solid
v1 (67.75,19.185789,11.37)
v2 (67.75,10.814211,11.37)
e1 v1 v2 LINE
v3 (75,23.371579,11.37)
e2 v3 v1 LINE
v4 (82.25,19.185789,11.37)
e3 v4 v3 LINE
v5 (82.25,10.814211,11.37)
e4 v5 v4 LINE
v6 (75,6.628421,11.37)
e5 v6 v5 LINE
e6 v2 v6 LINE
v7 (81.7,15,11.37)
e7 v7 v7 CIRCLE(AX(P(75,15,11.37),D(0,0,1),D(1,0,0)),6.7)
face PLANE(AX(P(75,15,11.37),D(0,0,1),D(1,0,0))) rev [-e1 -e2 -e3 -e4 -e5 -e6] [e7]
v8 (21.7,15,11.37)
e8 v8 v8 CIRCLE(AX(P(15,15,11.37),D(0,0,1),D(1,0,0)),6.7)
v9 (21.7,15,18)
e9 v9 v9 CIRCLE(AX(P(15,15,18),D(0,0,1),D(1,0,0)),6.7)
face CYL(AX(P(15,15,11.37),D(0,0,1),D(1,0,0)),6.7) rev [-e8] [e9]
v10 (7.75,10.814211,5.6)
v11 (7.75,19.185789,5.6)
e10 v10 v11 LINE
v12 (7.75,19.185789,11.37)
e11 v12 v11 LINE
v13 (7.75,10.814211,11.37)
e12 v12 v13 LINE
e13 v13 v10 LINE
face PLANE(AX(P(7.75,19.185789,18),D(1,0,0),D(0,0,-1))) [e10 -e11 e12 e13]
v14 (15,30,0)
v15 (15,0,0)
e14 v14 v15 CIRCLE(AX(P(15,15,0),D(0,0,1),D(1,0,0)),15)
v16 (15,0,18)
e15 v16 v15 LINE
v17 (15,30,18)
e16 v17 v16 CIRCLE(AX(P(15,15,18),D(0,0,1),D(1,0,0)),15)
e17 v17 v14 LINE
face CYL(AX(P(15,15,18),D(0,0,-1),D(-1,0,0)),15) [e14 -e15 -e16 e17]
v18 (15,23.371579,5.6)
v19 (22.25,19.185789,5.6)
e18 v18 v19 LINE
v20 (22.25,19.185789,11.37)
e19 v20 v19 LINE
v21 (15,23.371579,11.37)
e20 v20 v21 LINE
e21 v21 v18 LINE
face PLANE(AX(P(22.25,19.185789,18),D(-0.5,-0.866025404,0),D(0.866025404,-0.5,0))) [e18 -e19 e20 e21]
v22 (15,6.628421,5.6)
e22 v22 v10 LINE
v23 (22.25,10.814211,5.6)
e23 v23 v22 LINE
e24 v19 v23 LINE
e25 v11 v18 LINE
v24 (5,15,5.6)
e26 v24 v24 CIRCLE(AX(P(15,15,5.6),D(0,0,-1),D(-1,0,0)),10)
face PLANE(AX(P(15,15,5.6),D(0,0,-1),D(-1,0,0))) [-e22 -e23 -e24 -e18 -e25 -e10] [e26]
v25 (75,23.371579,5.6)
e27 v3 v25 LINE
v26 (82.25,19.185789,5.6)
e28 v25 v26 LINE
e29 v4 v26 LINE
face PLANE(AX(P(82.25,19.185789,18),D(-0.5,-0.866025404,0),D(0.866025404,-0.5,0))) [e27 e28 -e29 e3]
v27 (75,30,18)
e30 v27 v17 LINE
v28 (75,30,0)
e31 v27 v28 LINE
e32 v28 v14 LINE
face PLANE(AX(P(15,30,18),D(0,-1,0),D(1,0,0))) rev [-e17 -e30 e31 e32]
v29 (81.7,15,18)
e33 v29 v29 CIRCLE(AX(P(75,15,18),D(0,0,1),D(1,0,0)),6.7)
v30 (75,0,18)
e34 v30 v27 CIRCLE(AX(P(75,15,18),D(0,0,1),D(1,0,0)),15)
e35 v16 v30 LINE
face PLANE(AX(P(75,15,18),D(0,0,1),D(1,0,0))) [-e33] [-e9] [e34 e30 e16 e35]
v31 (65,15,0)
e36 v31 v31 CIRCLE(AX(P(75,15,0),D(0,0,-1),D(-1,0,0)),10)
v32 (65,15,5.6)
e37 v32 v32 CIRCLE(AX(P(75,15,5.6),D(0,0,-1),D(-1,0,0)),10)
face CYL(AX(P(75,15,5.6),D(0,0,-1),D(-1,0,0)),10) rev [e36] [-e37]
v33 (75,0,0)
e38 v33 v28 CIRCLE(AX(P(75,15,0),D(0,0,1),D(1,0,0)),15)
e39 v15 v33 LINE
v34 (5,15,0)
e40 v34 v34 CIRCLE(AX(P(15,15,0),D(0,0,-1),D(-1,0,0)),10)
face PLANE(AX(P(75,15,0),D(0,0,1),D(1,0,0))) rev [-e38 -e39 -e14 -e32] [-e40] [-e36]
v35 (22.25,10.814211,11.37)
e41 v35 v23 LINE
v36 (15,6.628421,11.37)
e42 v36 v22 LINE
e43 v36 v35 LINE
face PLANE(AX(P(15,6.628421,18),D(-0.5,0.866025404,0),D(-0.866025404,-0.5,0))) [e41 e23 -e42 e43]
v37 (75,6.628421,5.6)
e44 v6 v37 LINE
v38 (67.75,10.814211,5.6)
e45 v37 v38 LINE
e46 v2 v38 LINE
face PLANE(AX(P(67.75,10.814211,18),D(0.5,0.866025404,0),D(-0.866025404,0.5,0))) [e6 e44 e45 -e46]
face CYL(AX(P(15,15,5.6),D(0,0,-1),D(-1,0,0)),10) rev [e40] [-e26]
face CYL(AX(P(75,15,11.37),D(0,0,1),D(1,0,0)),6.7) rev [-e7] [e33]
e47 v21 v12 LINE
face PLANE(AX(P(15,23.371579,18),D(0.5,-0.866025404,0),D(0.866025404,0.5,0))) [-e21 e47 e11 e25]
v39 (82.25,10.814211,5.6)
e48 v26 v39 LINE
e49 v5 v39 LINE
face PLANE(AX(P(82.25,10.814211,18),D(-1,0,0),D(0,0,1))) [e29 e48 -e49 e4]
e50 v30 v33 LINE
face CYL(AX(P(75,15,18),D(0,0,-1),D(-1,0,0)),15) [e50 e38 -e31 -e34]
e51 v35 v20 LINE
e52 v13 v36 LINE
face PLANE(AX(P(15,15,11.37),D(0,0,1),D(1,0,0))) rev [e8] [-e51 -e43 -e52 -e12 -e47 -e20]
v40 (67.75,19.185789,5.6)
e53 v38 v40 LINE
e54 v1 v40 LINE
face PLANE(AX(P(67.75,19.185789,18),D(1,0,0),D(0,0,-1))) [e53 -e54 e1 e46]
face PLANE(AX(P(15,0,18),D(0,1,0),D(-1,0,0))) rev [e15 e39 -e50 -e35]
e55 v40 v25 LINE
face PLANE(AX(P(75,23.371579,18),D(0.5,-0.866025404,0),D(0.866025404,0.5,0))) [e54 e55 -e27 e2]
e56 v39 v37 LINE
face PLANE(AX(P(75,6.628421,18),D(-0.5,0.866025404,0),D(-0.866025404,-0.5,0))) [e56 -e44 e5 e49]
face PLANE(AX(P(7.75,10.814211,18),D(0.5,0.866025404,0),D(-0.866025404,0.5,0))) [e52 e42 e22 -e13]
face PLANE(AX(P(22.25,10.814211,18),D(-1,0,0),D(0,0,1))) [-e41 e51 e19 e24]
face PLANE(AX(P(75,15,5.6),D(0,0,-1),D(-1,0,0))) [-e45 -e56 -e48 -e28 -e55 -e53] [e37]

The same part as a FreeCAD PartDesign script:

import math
import FreeCAD as App
import Part
import Sketcher
Q = App.Units.Quantity

doc = App.newDocument("Part")
body = doc.addObject("PartDesign::Body", "Body")

sketch1 = body.newObject("Sketcher::SketchObject", "Sketch")
sketch1.AttachmentSupport = (doc.getObject("XY_Plane"), [""])
sketch1.MapMode = "FlatFace"
sketch1.addGeometry(Part.LineSegment(App.Vector(15, 0, 0), App.Vector(75, 0, 0)), False)
sketch1.addGeometry(Part.ArcOfCircle(Part.Circle(App.Vector(75, 15, 0), App.Vector(0, 0, 1), 15), math.radians(-90), math.radians(90)), False)
sketch1.addGeometry(Part.LineSegment(App.Vector(75, 30, 0), App.Vector(15, 30, 0)), False)
sketch1.addGeometry(Part.ArcOfCircle(Part.Circle(App.Vector(15, 15, 0), App.Vector(0, 0, 1), 15), math.radians(90), math.radians(270)), False)
sketch1.addGeometry(Part.LineSegment(App.Vector(7.75, 19.185789, 0), App.Vector(15, 23.371579, 0)), False)
sketch1.addGeometry(Part.LineSegment(App.Vector(15, 23.371579, 0), App.Vector(22.25, 19.185789, 0)), False)
sketch1.addGeometry(Part.LineSegment(App.Vector(22.25, 19.185789, 0), App.Vector(22.25, 10.814211, 0)), False)
sketch1.addGeometry(Part.LineSegment(App.Vector(22.25, 10.814211, 0), App.Vector(15, 6.628421, 0)), False)
sketch1.addGeometry(Part.LineSegment(App.Vector(15, 6.628421, 0), App.Vector(7.75, 10.814211, 0)), False)
sketch1.addGeometry(Part.LineSegment(App.Vector(7.75, 10.814211, 0), App.Vector(7.75, 19.185789, 0)), False)
sketch1.addGeometry(Part.LineSegment(App.Vector(67.75, 19.185789, 0), App.Vector(75, 23.371579, 0)), False)
sketch1.addGeometry(Part.LineSegment(App.Vector(75, 23.371579, 0), App.Vector(82.25, 19.185789, 0)), False)
sketch1.addGeometry(Part.LineSegment(App.Vector(82.25, 19.185789, 0), App.Vector(82.25, 10.814211, 0)), False)
sketch1.addGeometry(Part.LineSegment(App.Vector(82.25, 10.814211, 0), App.Vector(75, 6.628421, 0)), False)
sketch1.addGeometry(Part.LineSegment(App.Vector(75, 6.628421, 0), App.Vector(67.75, 10.814211, 0)), False)
sketch1.addGeometry(Part.LineSegment(App.Vector(67.75, 10.814211, 0), App.Vector(67.75, 19.185789, 0)), False)
sketch1.addConstraint(Sketcher.Constraint("Tangent", 0, 2, 1, 1))
sketch1.addConstraint(Sketcher.Constraint("Tangent", 1, 2, 2, 1))
sketch1.addConstraint(Sketcher.Constraint("Tangent", 2, 2, 3, 1))
sketch1.addConstraint(Sketcher.Constraint("Tangent", 3, 2, 0, 1))
sketch1.addConstraint(Sketcher.Constraint("Coincident", 4, 2, 5, 1))
sketch1.addConstraint(Sketcher.Constraint("Coincident", 5, 2, 6, 1))
sketch1.addConstraint(Sketcher.Constraint("Coincident", 6, 2, 7, 1))
sketch1.addConstraint(Sketcher.Constraint("Coincident", 7, 2, 8, 1))
sketch1.addConstraint(Sketcher.Constraint("Coincident", 8, 2, 9, 1))
sketch1.addConstraint(Sketcher.Constraint("Coincident", 9, 2, 4, 1))
sketch1.addConstraint(Sketcher.Constraint("Coincident", 10, 2, 11, 1))
sketch1.addConstraint(Sketcher.Constraint("Coincident", 11, 2, 12, 1))
sketch1.addConstraint(Sketcher.Constraint("Coincident", 12, 2, 13, 1))
sketch1.addConstraint(Sketcher.Constraint("Coincident", 13, 2, 14, 1))
sketch1.addConstraint(Sketcher.Constraint("Coincident", 14, 2, 15, 1))
sketch1.addConstraint(Sketcher.Constraint("Coincident", 15, 2, 10, 1))
sketch1.addConstraint(Sketcher.Constraint("Horizontal", 0))
sketch1.addConstraint(Sketcher.Constraint("Horizontal", 2))
sketch1.addConstraint(Sketcher.Constraint("Vertical", 6))
sketch1.addConstraint(Sketcher.Constraint("Vertical", 9))
sketch1.addConstraint(Sketcher.Constraint("Vertical", 12))
sketch1.addConstraint(Sketcher.Constraint("Vertical", 15))
sketch1.addConstraint(Sketcher.Constraint("PointOnObject", 0, 2, -1))
sketch1.addConstraint(Sketcher.Constraint("Parallel", 4, 7))
sketch1.addConstraint(Sketcher.Constraint("Parallel", 5, 8))
sketch1.addConstraint(Sketcher.Constraint("Parallel", 7, 10))
sketch1.addConstraint(Sketcher.Constraint("Parallel", 8, 11))
sketch1.addConstraint(Sketcher.Constraint("Parallel", 10, 13))
sketch1.addConstraint(Sketcher.Constraint("Parallel", 11, 14))
sketch1.addConstraint(Sketcher.Constraint("Horizontal", 6, 2, 8, 2))
sketch1.addConstraint(Sketcher.Constraint("Horizontal", 5, 2, 9, 2))
sketch1.addConstraint(Sketcher.Constraint("Horizontal", 4, 2, 10, 2))
sketch1.addConstraint(Sketcher.Constraint("Horizontal", 9, 2, 11, 2))
sketch1.addConstraint(Sketcher.Constraint("Horizontal", 8, 2, 12, 2))
sketch1.addConstraint(Sketcher.Constraint("Horizontal", 7, 2, 13, 2))
sketch1.addConstraint(Sketcher.Constraint("Horizontal", 12, 2, 14, 2))
sketch1.addConstraint(Sketcher.Constraint("Vertical", 3, 2, 4, 2))
sketch1.addConstraint(Sketcher.Constraint("Vertical", 4, 2, 7, 2))
sketch1.addConstraint(Sketcher.Constraint("Vertical", 1, 2, 10, 2))
sketch1.addConstraint(Sketcher.Constraint("Radius", 1, Q("15 mm")))
sketch1.addConstraint(Sketcher.Constraint("DistanceX", 0, 1, 0, 2, Q("60 mm")))
sketch1.addConstraint(Sketcher.Constraint("Angle", 4, Q("30 deg")))
sketch1.addConstraint(Sketcher.Constraint("DistanceX", -1, 1, 1, 3, Q("75 mm")))
sketch1.addConstraint(Sketcher.Constraint("DistanceX", 8, 2, 6, 2, Q("14.5 mm")))
sketch1.addConstraint(Sketcher.Constraint("DistanceY", 6, 2, 6, 1, Q("8.371579 mm")))
sketch1.addConstraint(Sketcher.Constraint("DistanceY", -1, 1, 4, 2, Q("23.371579 mm")))
pad1 = body.newObject("PartDesign::Pad", "Pad")
pad1.Profile = sketch1
pad1.Length = 18

sketch2 = body.newObject("Sketcher::SketchObject", "Sketch001")
sketch2.AttachmentSupport = (doc.getObject("XY_Plane"), [""])
sketch2.MapMode = "FlatFace"
sketch2.addGeometry(Part.Circle(App.Vector(75, 15, 0), App.Vector(0, 0, 1), 10), False)
sketch2.addGeometry(Part.Circle(App.Vector(15, 15, 0), App.Vector(0, 0, 1), 10), False)
sketch2.addConstraint(Sketcher.Constraint("Equal", 0, 1))
sketch2.addConstraint(Sketcher.Constraint("Horizontal", 0, 3, 1, 3))
sketch2.addConstraint(Sketcher.Constraint("Diameter", 0, Q("20 mm")))
sketch2.addConstraint(Sketcher.Constraint("DistanceX", -1, 1, 0, 3, Q("75 mm")))
sketch2.addConstraint(Sketcher.Constraint("DistanceY", -1, 1, 0, 3, Q("15 mm")))
sketch2.addConstraint(Sketcher.Constraint("DistanceX", -1, 1, 1, 3, Q("15 mm")))
pocket1 = body.newObject("PartDesign::Pocket", "Pocket")
pocket1.Profile = sketch2
pocket1.Length = 5.6
pocket1.Reversed = True

sketch3 = body.newObject("Sketcher::SketchObject", "Sketch002")
sketch3.AttachmentSupport = (doc.getObject("XY_Plane"), [""])
sketch3.MapMode = "FlatFace"
sketch3.AttachmentOffset = App.Placement(App.Vector(0, 0, 18), App.Rotation())
sketch3.addGeometry(Part.Circle(App.Vector(75, 15, 0), App.Vector(0, 0, 1), 8.371579), False)
sketch3.addGeometry(Part.Circle(App.Vector(75, 15, 0), App.Vector(0, 0, 1), 6.7), False)
sketch3.addGeometry(Part.Circle(App.Vector(15, 15, 0), App.Vector(0, 0, 1), 8.371579), False)
sketch3.addGeometry(Part.Circle(App.Vector(15, 15, 0), App.Vector(0, 0, 1), 6.7), False)
sketch3.addConstraint(Sketcher.Constraint("Coincident", 1, 3, 0, 3))
sketch3.addConstraint(Sketcher.Constraint("Coincident", 3, 3, 2, 3))
sketch3.addConstraint(Sketcher.Constraint("Equal", 0, 2))
sketch3.addConstraint(Sketcher.Constraint("Equal", 1, 3))
sketch3.addConstraint(Sketcher.Constraint("Horizontal", 1, 3, 2, 3))
sketch3.addConstraint(Sketcher.Constraint("Diameter", 1, Q("13.4 mm")))
sketch3.addConstraint(Sketcher.Constraint("DistanceX", -1, 1, 0, 3, Q("75 mm")))
sketch3.addConstraint(Sketcher.Constraint("DistanceY", -1, 1, 0, 3, Q("15 mm")))
sketch3.addConstraint(Sketcher.Constraint("DistanceX", -1, 1, 2, 3, Q("15 mm")))
sketch3.addConstraint(Sketcher.Constraint("Diameter", 0, Q("16.743158 mm")))
pad2 = body.newObject("PartDesign::Pad", "Pad001")
pad2.Profile = sketch3
pad2.Length = 6.63
pad2.Reversed = True

doc.recompute()
